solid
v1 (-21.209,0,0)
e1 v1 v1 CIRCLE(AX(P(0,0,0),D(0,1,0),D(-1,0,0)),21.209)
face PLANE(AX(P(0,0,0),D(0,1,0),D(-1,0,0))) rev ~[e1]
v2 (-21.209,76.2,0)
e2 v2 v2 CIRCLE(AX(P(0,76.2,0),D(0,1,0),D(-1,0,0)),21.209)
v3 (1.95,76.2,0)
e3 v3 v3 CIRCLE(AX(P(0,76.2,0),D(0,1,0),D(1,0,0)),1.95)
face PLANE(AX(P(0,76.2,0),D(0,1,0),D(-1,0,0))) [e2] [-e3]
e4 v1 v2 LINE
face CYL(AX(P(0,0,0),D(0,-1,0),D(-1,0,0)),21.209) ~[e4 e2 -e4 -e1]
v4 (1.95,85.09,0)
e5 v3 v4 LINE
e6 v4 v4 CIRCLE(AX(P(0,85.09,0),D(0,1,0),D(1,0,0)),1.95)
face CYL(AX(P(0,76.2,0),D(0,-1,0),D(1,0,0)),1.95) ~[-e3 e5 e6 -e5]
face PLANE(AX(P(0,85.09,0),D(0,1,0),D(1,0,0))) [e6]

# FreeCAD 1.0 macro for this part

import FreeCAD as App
import Part
import Sketcher
from FreeCAD import Vector
Q = App.Units.Quantity

doc = App.newDocument("Part")
body = doc.addObject("PartDesign::Body", "Body")

# Sketch on XZ plane
sketch1 = doc.addObject("Sketcher::SketchObject", "Sketch")
body.addObject(sketch1)
sketch1.AttachmentSupport = (doc.XZ_Plane, [""])
sketch1.MapMode = "FlatFace"
sketch1.addGeometry(Part.Circle(Vector(0, 0, 0), Vector(0, 0, 1), 21), False)
sketch1.addConstraint([
    Sketcher.Constraint("Coincident", 0, 3, -1, 1),
    Sketcher.Constraint("Diameter", 0, Q("1.67 in")),
])
pad1 = doc.addObject("PartDesign::Pad", "Pad")
body.addObject(pad1)
pad1.Profile = sketch1
pad1.Length = Q("3 in")
pad1.Reversed = True

# Sketch on XZ plane
sketch2 = doc.addObject("Sketcher::SketchObject", "Sketch001")
body.addObject(sketch2)
sketch2.AttachmentSupport = (doc.XZ_Plane, [""])
sketch2.MapMode = "FlatFace"
sketch2.AttachmentOffset = App.Placement(Vector(0, 0, -3 * 25.4), App.Rotation())
sketch2.addGeometry(Part.Circle(Vector(0, 0, 0), Vector(0, 0, 1), 1.9), False)
sketch2.addConstraint([
    Sketcher.Constraint("Coincident", 0, 3, -1, 1),
    Sketcher.Constraint("Diameter", 0, 3.9),
])
pad2 = doc.addObject("PartDesign::Pad", "Pad001")
body.addObject(pad2)
pad2.Profile = sketch2
pad2.Length = Q("0.35 in")
pad2.Reversed = True

doc.recompute()
